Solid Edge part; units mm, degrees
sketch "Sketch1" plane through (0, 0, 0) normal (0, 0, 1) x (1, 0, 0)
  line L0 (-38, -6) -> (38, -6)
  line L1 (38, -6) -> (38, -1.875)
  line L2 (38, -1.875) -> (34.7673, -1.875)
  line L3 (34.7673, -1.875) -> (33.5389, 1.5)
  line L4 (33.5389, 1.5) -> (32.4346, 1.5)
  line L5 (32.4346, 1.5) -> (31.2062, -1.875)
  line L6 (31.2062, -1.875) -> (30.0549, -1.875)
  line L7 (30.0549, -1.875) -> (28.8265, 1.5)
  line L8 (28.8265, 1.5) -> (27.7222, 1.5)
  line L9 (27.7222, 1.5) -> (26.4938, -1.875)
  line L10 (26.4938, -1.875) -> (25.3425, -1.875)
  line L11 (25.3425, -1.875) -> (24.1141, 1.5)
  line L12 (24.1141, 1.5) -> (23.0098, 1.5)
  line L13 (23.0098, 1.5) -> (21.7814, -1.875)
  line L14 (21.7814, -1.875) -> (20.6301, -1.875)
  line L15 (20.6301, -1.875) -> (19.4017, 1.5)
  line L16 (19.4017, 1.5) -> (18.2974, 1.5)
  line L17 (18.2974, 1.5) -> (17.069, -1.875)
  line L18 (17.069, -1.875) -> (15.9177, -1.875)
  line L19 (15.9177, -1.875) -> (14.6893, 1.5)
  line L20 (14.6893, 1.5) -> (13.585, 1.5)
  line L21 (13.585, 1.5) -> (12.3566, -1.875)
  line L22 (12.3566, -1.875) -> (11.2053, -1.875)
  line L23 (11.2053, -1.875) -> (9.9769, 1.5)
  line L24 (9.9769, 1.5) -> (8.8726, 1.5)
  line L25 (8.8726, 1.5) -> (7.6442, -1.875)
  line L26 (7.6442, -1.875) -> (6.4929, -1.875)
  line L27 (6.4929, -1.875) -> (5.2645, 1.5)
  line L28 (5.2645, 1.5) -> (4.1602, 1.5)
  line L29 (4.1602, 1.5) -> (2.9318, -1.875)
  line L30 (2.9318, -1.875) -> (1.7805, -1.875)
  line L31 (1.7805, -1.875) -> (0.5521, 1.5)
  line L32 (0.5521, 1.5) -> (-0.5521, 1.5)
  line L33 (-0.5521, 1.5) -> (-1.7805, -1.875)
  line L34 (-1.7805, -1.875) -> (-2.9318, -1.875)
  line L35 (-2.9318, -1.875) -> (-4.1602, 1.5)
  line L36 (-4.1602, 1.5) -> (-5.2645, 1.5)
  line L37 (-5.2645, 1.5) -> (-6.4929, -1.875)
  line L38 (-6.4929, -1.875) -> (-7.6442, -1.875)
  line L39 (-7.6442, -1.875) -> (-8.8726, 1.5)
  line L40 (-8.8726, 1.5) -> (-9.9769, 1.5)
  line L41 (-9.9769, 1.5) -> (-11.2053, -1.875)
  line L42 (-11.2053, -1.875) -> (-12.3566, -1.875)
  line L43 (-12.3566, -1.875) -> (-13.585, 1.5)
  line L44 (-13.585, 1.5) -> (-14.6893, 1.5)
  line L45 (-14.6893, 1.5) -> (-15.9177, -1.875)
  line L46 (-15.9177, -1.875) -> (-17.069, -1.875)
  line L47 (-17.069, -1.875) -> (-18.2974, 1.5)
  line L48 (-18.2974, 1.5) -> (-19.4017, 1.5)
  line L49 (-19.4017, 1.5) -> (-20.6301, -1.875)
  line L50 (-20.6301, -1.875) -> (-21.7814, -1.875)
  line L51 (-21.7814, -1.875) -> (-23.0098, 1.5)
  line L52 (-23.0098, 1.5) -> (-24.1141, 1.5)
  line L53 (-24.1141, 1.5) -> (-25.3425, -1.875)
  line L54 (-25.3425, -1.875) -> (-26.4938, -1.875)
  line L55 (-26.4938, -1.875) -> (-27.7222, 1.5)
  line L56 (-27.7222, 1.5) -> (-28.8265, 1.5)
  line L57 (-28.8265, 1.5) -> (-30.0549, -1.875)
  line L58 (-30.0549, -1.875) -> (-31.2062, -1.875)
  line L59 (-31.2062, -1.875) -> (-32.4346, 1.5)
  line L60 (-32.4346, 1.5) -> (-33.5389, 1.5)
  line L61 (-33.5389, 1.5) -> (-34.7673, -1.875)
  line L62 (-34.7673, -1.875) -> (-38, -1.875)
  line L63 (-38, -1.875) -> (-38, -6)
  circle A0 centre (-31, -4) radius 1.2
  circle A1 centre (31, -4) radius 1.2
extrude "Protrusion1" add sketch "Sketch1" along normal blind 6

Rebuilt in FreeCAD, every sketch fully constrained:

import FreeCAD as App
import Part
import Sketcher

V = App.Vector
Q = App.Units.Quantity

doc = App.newDocument("Part")
params = doc.addObject("Spreadsheet::Sheet", "Params")
for row, (alias, value) in enumerate([
    ("sketch1_diameter", "2.4 mm"),
    ("sketch1_width", "76 mm"),
    ("pad1_length", "6 mm"),
], start=1):
    params.set(f"A{row}", alias)
    params.set(f"B{row}", "=" + value)
    params.setAlias(f"B{row}", alias)

body = doc.addObject("PartDesign::Body", "Body")

# Sketch on XY plane
sketch1 = body.newObject("Sketcher::SketchObject", "Sketch")
sketch1.AttachmentSupport = (doc.getObject("XY_Plane"), [""])
sketch1.MapMode = "FlatFace"
sketch1.addGeometry(Part.LineSegment(V(-38, -1.875, 0), V(-38, -6, 0)), False)
sketch1.addGeometry(Part.LineSegment(V(-38, -6, 0), V(38, -6, 0)), False)
sketch1.addGeometry(Part.LineSegment(V(38, -6, 0), V(38, -1.875, 0)), False)
sketch1.addGeometry(Part.LineSegment(V(38, -1.875, 0), V(34.7673, -1.875, 0)), False)
sketch1.addGeometry(Part.LineSegment(V(34.7673, -1.875, 0), V(33.5389, 1.5, 0)), False)
sketch1.addGeometry(Part.LineSegment(V(33.5389, 1.5, 0), V(32.4346, 1.5, 0)), False)
sketch1.addGeometry(Part.LineSegment(V(32.4346, 1.5, 0), V(31.2062, -1.875, 0)), False)
sketch1.addGeometry(Part.LineSegment(V(31.2062, -1.875, 0), V(30.0549, -1.875, 0)), False)
sketch1.addGeometry(Part.LineSegment(V(30.0549, -1.875, 0), V(28.8265, 1.5, 0)), False)
sketch1.addGeometry(Part.LineSegment(V(28.8265, 1.5, 0), V(27.7222, 1.5, 0)), False)
sketch1.addGeometry(Part.LineSegment(V(27.7222, 1.5, 0), V(26.4938, -1.875, 0)), False)
sketch1.addGeometry(Part.LineSegment(V(26.4938, -1.875, 0), V(25.3425, -1.875, 0)), False)
sketch1.addGeometry(Part.LineSegment(V(25.3425, -1.875, 0), V(24.1141, 1.5, 0)), False)
sketch1.addGeometry(Part.LineSegment(V(24.1141, 1.5, 0), V(23.0098, 1.5, 0)), False)
sketch1.addGeometry(Part.LineSegment(V(23.0098, 1.5, 0), V(21.7814, -1.875, 0)), False)
sketch1.addGeometry(Part.LineSegment(V(21.7814, -1.875, 0), V(20.6301, -1.875, 0)), False)
sketch1.addGeometry(Part.LineSegment(V(20.6301, -1.875, 0), V(19.4017, 1.5, 0)), False)
sketch1.addGeometry(Part.LineSegment(V(19.4017, 1.5, 0), V(18.2974, 1.5, 0)), False)
sketch1.addGeometry(Part.LineSegment(V(18.2974, 1.5, 0), V(17.069, -1.875, 0)), False)
sketch1.addGeometry(Part.LineSegment(V(17.069, -1.875, 0), V(15.9177, -1.875, 0)), False)
sketch1.addGeometry(Part.LineSegment(V(15.9177, -1.875, 0), V(14.6893, 1.5, 0)), False)
sketch1.addGeometry(Part.LineSegment(V(14.6893, 1.5, 0), V(13.585, 1.5, 0)), False)
sketch1.addGeometry(Part.LineSegment(V(13.585, 1.5, 0), V(12.3566, -1.875, 0)), False)
sketch1.addGeometry(Part.LineSegment(V(12.3566, -1.875, 0), V(11.2053, -1.875, 0)), False)
sketch1.addGeometry(Part.LineSegment(V(11.2053, -1.875, 0), V(9.9769, 1.5, 0)), False)
sketch1.addGeometry(Part.LineSegment(V(9.9769, 1.5, 0), V(8.8726, 1.5, 0)), False)
sketch1.addGeometry(Part.LineSegment(V(8.8726, 1.5, 0), V(7.6442, -1.875, 0)), False)
sketch1.addGeometry(Part.LineSegment(V(7.6442, -1.875, 0), V(6.4929, -1.875, 0)), False)
sketch1.addGeometry(Part.LineSegment(V(6.4929, -1.875, 0), V(5.2645, 1.5, 0)), False)
sketch1.addGeometry(Part.LineSegment(V(5.2645, 1.5, 0), V(4.1602, 1.5, 0)), False)
sketch1.addGeometry(Part.LineSegment(V(4.1602, 1.5, 0), V(2.9318, -1.875, 0)), False)
sketch1.addGeometry(Part.LineSegment(V(2.9318, -1.875, 0), V(1.7805, -1.875, 0)), False)
sketch1.addGeometry(Part.LineSegment(V(1.7805, -1.875, 0), V(0.5521, 1.5, 0)), False)
sketch1.addGeometry(Part.LineSegment(V(0.5521, 1.5, 0), V(-0.5521, 1.5, 0)), False)
sketch1.addGeometry(Part.LineSegment(V(-0.5521, 1.5, 0), V(-1.7805, -1.875, 0)), False)
sketch1.addGeometry(Part.LineSegment(V(-1.7805, -1.875, 0), V(-2.9318, -1.875, 0)), False)
sketch1.addGeometry(Part.LineSegment(V(-2.9318, -1.875, 0), V(-4.1602, 1.5, 0)), False)
sketch1.addGeometry(Part.LineSegment(V(-4.1602, 1.5, 0), V(-5.2645, 1.5, 0)), False)
sketch1.addGeometry(Part.LineSegment(V(-5.2645, 1.5, 0), V(-6.4929, -1.875, 0)), False)
sketch1.addGeometry(Part.LineSegment(V(-6.4929, -1.875, 0), V(-7.6442, -1.875, 0)), False)
sketch1.addGeometry(Part.LineSegment(V(-7.6442, -1.875, 0), V(-8.8726, 1.5, 0)), False)
sketch1.addGeometry(Part.LineSegment(V(-8.8726, 1.5, 0), V(-9.9769, 1.5, 0)), False)
sketch1.addGeometry(Part.LineSegment(V(-9.9769, 1.5, 0), V(-11.2053, -1.875, 0)), False)
sketch1.addGeometry(Part.LineSegment(V(-11.2053, -1.875, 0), V(-12.3566, -1.875, 0)), False)
sketch1.addGeometry(Part.LineSegment(V(-12.3566, -1.875, 0), V(-13.585, 1.5, 0)), False)
sketch1.addGeometry(Part.LineSegment(V(-13.585, 1.5, 0), V(-14.6893, 1.5, 0)), False)
sketch1.addGeometry(Part.LineSegment(V(-14.6893, 1.5, 0), V(-15.9177, -1.875, 0)), False)
sketch1.addGeometry(Part.LineSegment(V(-15.9177, -1.875, 0), V(-17.069, -1.875, 0)), False)
sketch1.addGeometry(Part.LineSegment(V(-17.069, -1.875, 0), V(-18.2974, 1.5, 0)), False)
sketch1.addGeometry(Part.LineSegment(V(-18.2974, 1.5, 0), V(-19.4017, 1.5, 0)), False)
sketch1.addGeometry(Part.LineSegment(V(-19.4017, 1.5, 0), V(-20.6301, -1.875, 0)), False)
sketch1.addGeometry(Part.LineSegment(V(-20.6301, -1.875, 0), V(-21.7814, -1.875, 0)), False)
sketch1.addGeometry(Part.LineSegment(V(-21.7814, -1.875, 0), V(-23.0098, 1.5, 0)), False)
sketch1.addGeometry(Part.LineSegment(V(-23.0098, 1.5, 0), V(-24.1141, 1.5, 0)), False)
sketch1.addGeometry(Part.LineSegment(V(-24.1141, 1.5, 0), V(-25.3425, -1.875, 0)), False)
sketch1.addGeometry(Part.LineSegment(V(-25.3425, -1.875, 0), V(-26.4938, -1.875, 0)), False)
sketch1.addGeometry(Part.LineSegment(V(-26.4938, -1.875, 0), V(-27.7222, 1.5, 0)), False)
sketch1.addGeometry(Part.LineSegment(V(-27.7222, 1.5, 0), V(-28.8265, 1.5, 0)), False)
sketch1.addGeometry(Part.LineSegment(V(-28.8265, 1.5, 0), V(-30.0549, -1.875, 0)), False)
sketch1.addGeometry(Part.LineSegment(V(-30.0549, -1.875, 0), V(-31.2062, -1.875, 0)), False)
sketch1.addGeometry(Part.LineSegment(V(-31.2062, -1.875, 0), V(-32.4346, 1.5, 0)), False)
sketch1.addGeometry(Part.LineSegment(V(-32.4346, 1.5, 0), V(-33.5389, 1.5, 0)), False)
sketch1.addGeometry(Part.LineSegment(V(-33.5389, 1.5, 0), V(-34.7673, -1.875, 0)), False)
sketch1.addGeometry(Part.LineSegment(V(-34.7673, -1.875, 0), V(-38, -1.875, 0)), False)
sketch1.addGeometry(Part.Circle(V(-31, -4, 0), V(0, 0, 1), 1.2), False)
sketch1.addGeometry(Part.Circle(V(31, -4, 0), V(0, 0, 1), 1.2), False)
sketch1.addConstraint(Sketcher.Constraint("Coincident", 0, 2, 1, 1))
sketch1.addConstraint(Sketcher.Constraint("Coincident", 1, 2, 2, 1))
sketch1.addConstraint(Sketcher.Constraint("Coincident", 2, 2, 3, 1))
sketch1.addConstraint(Sketcher.Constraint("Coincident", 3, 2, 4, 1))
sketch1.addConstraint(Sketcher.Constraint("Coincident", 4, 2, 5, 1))
sketch1.addConstraint(Sketcher.Constraint("Coincident", 5, 2, 6, 1))
sketch1.addConstraint(Sketcher.Constraint("Coincident", 6, 2, 7, 1))
sketch1.addConstraint(Sketcher.Constraint("Coincident", 7, 2, 8, 1))
sketch1.addConstraint(Sketcher.Constraint("Coincident", 8, 2, 9, 1))
sketch1.addConstraint(Sketcher.Constraint("Coincident", 9, 2, 10, 1))
sketch1.addConstraint(Sketcher.Constraint("Coincident", 10, 2, 11, 1))
sketch1.addConstraint(Sketcher.Constraint("Coincident", 11, 2, 12, 1))
sketch1.addConstraint(Sketcher.Constraint("Coincident", 12, 2, 13, 1))
sketch1.addConstraint(Sketcher.Constraint("Coincident", 13, 2, 14, 1))
sketch1.addConstraint(Sketcher.Constraint("Coincident", 14, 2, 15, 1))
sketch1.addConstraint(Sketcher.Constraint("Coincident", 15, 2, 16, 1))
sketch1.addConstraint(Sketcher.Constraint("Coincident", 16, 2, 17, 1))
sketch1.addConstraint(Sketcher.Constraint("Coincident", 17, 2, 18, 1))
sketch1.addConstraint(Sketcher.Constraint("Coincident", 18, 2, 19, 1))
sketch1.addConstraint(Sketcher.Constraint("Coincident", 19, 2, 20, 1))
sketch1.addConstraint(Sketcher.Constraint("Coincident", 20, 2, 21, 1))
sketch1.addConstraint(Sketcher.Constraint("Coincident", 21, 2, 22, 1))
sketch1.addConstraint(Sketcher.Constraint("Coincident", 22, 2, 23, 1))
sketch1.addConstraint(Sketcher.Constraint("Coincident", 23, 2, 24, 1))
sketch1.addConstraint(Sketcher.Constraint("Coincident", 24, 2, 25, 1))
sketch1.addConstraint(Sketcher.Constraint("Coincident", 25, 2, 26, 1))
sketch1.addConstraint(Sketcher.Constraint("Coincident", 26, 2, 27, 1))
sketch1.addConstraint(Sketcher.Constraint("Coincident", 27, 2, 28, 1))
sketch1.addConstraint(Sketcher.Constraint("Coincident", 28, 2, 29, 1))
sketch1.addConstraint(Sketcher.Constraint("Coincident", 29, 2, 30, 1))
sketch1.addConstraint(Sketcher.Constraint("Coincident", 30, 2, 31, 1))
sketch1.addConstraint(Sketcher.Constraint("Coincident", 31, 2, 32, 1))
sketch1.addConstraint(Sketcher.Constraint("Coincident", 32, 2, 33, 1))
sketch1.addConstraint(Sketcher.Constraint("Coincident", 33, 2, 34, 1))
sketch1.addConstraint(Sketcher.Constraint("Coincident", 34, 2, 35, 1))
sketch1.addConstraint(Sketcher.Constraint("Coincident", 35, 2, 36, 1))
sketch1.addConstraint(Sketcher.Constraint("Coincident", 36, 2, 37, 1))
sketch1.addConstraint(Sketcher.Constraint("Coincident", 37, 2, 38, 1))
sketch1.addConstraint(Sketcher.Constraint("Coincident", 38, 2, 39, 1))
sketch1.addConstraint(Sketcher.Constraint("Coincident", 39, 2, 40, 1))
sketch1.addConstraint(Sketcher.Constraint("Coincident", 40, 2, 41, 1))
sketch1.addConstraint(Sketcher.Constraint("Coincident", 41, 2, 42, 1))
sketch1.addConstraint(Sketcher.Constraint("Coincident", 42, 2, 43, 1))
sketch1.addConstraint(Sketcher.Constraint("Coincident", 43, 2, 44, 1))
sketch1.addConstraint(Sketcher.Constraint("Coincident", 44, 2, 45, 1))
sketch1.addConstraint(Sketcher.Constraint("Coincident", 45, 2, 46, 1))
sketch1.addConstraint(Sketcher.Constraint("Coincident", 46, 2, 47, 1))
sketch1.addConstraint(Sketcher.Constraint("Coincident", 47, 2, 48, 1))
sketch1.addConstraint(Sketcher.Constraint("Coincident", 48, 2, 49, 1))
sketch1.addConstraint(Sketcher.Constraint("Coincident", 49, 2, 50, 1))
sketch1.addConstraint(Sketcher.Constraint("Coincident", 50, 2, 51, 1))
sketch1.addConstraint(Sketcher.Constraint("Coincident", 51, 2, 52, 1))
sketch1.addConstraint(Sketcher.Constraint("Coincident", 52, 2, 53, 1))
sketch1.addConstraint(Sketcher.Constraint("Coincident", 53, 2, 54, 1))
sketch1.addConstraint(Sketcher.Constraint("Coincident", 54, 2, 55, 1))
sketch1.addConstraint(Sketcher.Constraint("Coincident", 55, 2, 56, 1))
sketch1.addConstraint(Sketcher.Constraint("Coincident", 56, 2, 57, 1))
sketch1.addConstraint(Sketcher.Constraint("Coincident", 57, 2, 58, 1))
sketch1.addConstraint(Sketcher.Constraint("Coincident", 58, 2, 59, 1))
sketch1.addConstraint(Sketcher.Constraint("Coincident", 59, 2, 60, 1))
sketch1.addConstraint(Sketcher.Constraint("Coincident", 60, 2, 61, 1))
sketch1.addConstraint(Sketcher.Constraint("Coincident", 61, 2, 62, 1))
sketch1.addConstraint(Sketcher.Constraint("Coincident", 62, 2, 63, 1))
sketch1.addConstraint(Sketcher.Constraint("Coincident", 63, 2, 0, 1))
sketch1.addConstraint(Sketcher.Constraint("Vertical", 0))
sketch1.addConstraint(Sketcher.Constraint("Horizontal", 1))
sketch1.addConstraint(Sketcher.Constraint("Vertical", 2))
sketch1.addConstraint(Sketcher.Constraint("Horizontal", 3))
sketch1.addConstraint(Sketcher.Constraint("Horizontal", 5))
sketch1.addConstraint(Sketcher.Constraint("Horizontal", 7))
sketch1.addConstraint(Sketcher.Constraint("Horizontal", 9))
sketch1.addConstraint(Sketcher.Constraint("Horizontal", 11))
sketch1.addConstraint(Sketcher.Constraint("Horizontal", 13))
sketch1.addConstraint(Sketcher.Constraint("Horizontal", 15))
sketch1.addConstraint(Sketcher.Constraint("Horizontal", 17))
sketch1.addConstraint(Sketcher.Constraint("Horizontal", 19))
sketch1.addConstraint(Sketcher.Constraint("Horizontal", 21))
sketch1.addConstraint(Sketcher.Constraint("Horizontal", 23))
sketch1.addConstraint(Sketcher.Constraint("Horizontal", 25))
sketch1.addConstraint(Sketcher.Constraint("Horizontal", 27))
sketch1.addConstraint(Sketcher.Constraint("Horizontal", 29))
sketch1.addConstraint(Sketcher.Constraint("Horizontal", 31))
sketch1.addConstraint(Sketcher.Constraint("Horizontal", 33))
sketch1.addConstraint(Sketcher.Constraint("Horizontal", 35))
sketch1.addConstraint(Sketcher.Constraint("Horizontal", 37))
sketch1.addConstraint(Sketcher.Constraint("Horizontal", 39))
sketch1.addConstraint(Sketcher.Constraint("Horizontal", 41))
sketch1.addConstraint(Sketcher.Constraint("Horizontal", 43))
sketch1.addConstraint(Sketcher.Constraint("Horizontal", 45))
sketch1.addConstraint(Sketcher.Constraint("Horizontal", 47))
sketch1.addConstraint(Sketcher.Constraint("Horizontal", 49))
sketch1.addConstraint(Sketcher.Constraint("Horizontal", 51))
sketch1.addConstraint(Sketcher.Constraint("Horizontal", 53))
sketch1.addConstraint(Sketcher.Constraint("Horizontal", 55))
sketch1.addConstraint(Sketcher.Constraint("Horizontal", 57))
sketch1.addConstraint(Sketcher.Constraint("Horizontal", 59))
sketch1.addConstraint(Sketcher.Constraint("Horizontal", 61))
sketch1.addConstraint(Sketcher.Constraint("Horizontal", 63))
sketch1.addConstraint(Sketcher.Constraint("Equal", 64, 65))
sketch1.addConstraint(Sketcher.Constraint("Symmetric", 64, 3, 65, 3, -2))
sketch1.addConstraint(Sketcher.Constraint("Symmetric", 31, 2, 34, 2, -2))
sketch1.addConstraint(Sketcher.Constraint("Symmetric", 29, 2, 36, 2, -2))
sketch1.addConstraint(Sketcher.Constraint("Symmetric", 27, 2, 38, 2, -2))
sketch1.addConstraint(Sketcher.Constraint("Symmetric", 25, 2, 40, 2, -2))
sketch1.addConstraint(Sketcher.Constraint("Symmetric", 23, 2, 42, 2, -2))
sketch1.addConstraint(Sketcher.Constraint("Symmetric", 21, 2, 44, 2, -2))
sketch1.addConstraint(Sketcher.Constraint("Symmetric", 19, 2, 46, 2, -2))
sketch1.addConstraint(Sketcher.Constraint("Symmetric", 17, 2, 48, 2, -2))
sketch1.addConstraint(Sketcher.Constraint("Symmetric", 15, 2, 50, 2, -2))
sketch1.addConstraint(Sketcher.Constraint("Symmetric", 13, 2, 52, 2, -2))
sketch1.addConstraint(Sketcher.Constraint("Symmetric", 11, 2, 54, 2, -2))
sketch1.addConstraint(Sketcher.Constraint("Symmetric", 9, 2, 56, 2, -2))
sketch1.addConstraint(Sketcher.Constraint("Symmetric", 7, 2, 58, 2, -2))
sketch1.addConstraint(Sketcher.Constraint("Symmetric", 5, 2, 60, 2, -2))
sketch1.addConstraint(Sketcher.Constraint("Symmetric", 3, 2, 62, 2, -2))
sketch1.addConstraint(Sketcher.Constraint("Parallel", 4, 8))
sketch1.addConstraint(Sketcher.Constraint("Parallel", 6, 10))
sketch1.addConstraint(Sketcher.Constraint("Parallel", 8, 12))
sketch1.addConstraint(Sketcher.Constraint("Parallel", 10, 14))
sketch1.addConstraint(Sketcher.Constraint("Parallel", 12, 16))
sketch1.addConstraint(Sketcher.Constraint("Parallel", 14, 18))
sketch1.addConstraint(Sketcher.Constraint("Parallel", 16, 20))
sketch1.addConstraint(Sketcher.Constraint("Parallel", 18, 22))
sketch1.addConstraint(Sketcher.Constraint("Parallel", 20, 24))
sketch1.addConstraint(Sketcher.Constraint("Parallel", 22, 26))
sketch1.addConstraint(Sketcher.Constraint("Parallel", 24, 28))
sketch1.addConstraint(Sketcher.Constraint("Parallel", 26, 30))
sketch1.addConstraint(Sketcher.Constraint("Parallel", 28, 32))
sketch1.addConstraint(Sketcher.Constraint("Parallel", 30, 34))
sketch1.addConstraint(Sketcher.Constraint("Parallel", 32, 36))
sketch1.addConstraint(Sketcher.Constraint("Parallel", 34, 38))
sketch1.addConstraint(Sketcher.Constraint("Parallel", 36, 40))
sketch1.addConstraint(Sketcher.Constraint("Parallel", 38, 42))
sketch1.addConstraint(Sketcher.Constraint("Parallel", 40, 44))
sketch1.addConstraint(Sketcher.Constraint("Parallel", 42, 46))
sketch1.addConstraint(Sketcher.Constraint("Parallel", 44, 48))
sketch1.addConstraint(Sketcher.Constraint("Parallel", 46, 50))
sketch1.addConstraint(Sketcher.Constraint("Parallel", 48, 52))
sketch1.addConstraint(Sketcher.Constraint("Parallel", 50, 54))
sketch1.addConstraint(Sketcher.Constraint("Parallel", 52, 56))
sketch1.addConstraint(Sketcher.Constraint("Parallel", 54, 58))
sketch1.addConstraint(Sketcher.Constraint("Parallel", 56, 60))
sketch1.addConstraint(Sketcher.Constraint("Parallel", 58, 62))
sketch1.addConstraint(Sketcher.Constraint("Horizontal", 3, 2, 6, 2))
sketch1.addConstraint(Sketcher.Constraint("Horizontal", 5, 2, 8, 2))
sketch1.addConstraint(Sketcher.Constraint("Horizontal", 7, 2, 10, 2))
sketch1.addConstraint(Sketcher.Constraint("Horizontal", 9, 2, 12, 2))
sketch1.addConstraint(Sketcher.Constraint("Horizontal", 11, 2, 14, 2))
sketch1.addConstraint(Sketcher.Constraint("Horizontal", 13, 2, 16, 2))
sketch1.addConstraint(Sketcher.Constraint("Horizontal", 15, 2, 18, 2))
sketch1.addConstraint(Sketcher.Constraint("Horizontal", 17, 2, 20, 2))
sketch1.addConstraint(Sketcher.Constraint("Horizontal", 19, 2, 22, 2))
sketch1.addConstraint(Sketcher.Constraint("Horizontal", 21, 2, 24, 2))
sketch1.addConstraint(Sketcher.Constraint("Horizontal", 23, 2, 26, 2))
sketch1.addConstraint(Sketcher.Constraint("Horizontal", 25, 2, 28, 2))
sketch1.addConstraint(Sketcher.Constraint("Horizontal", 27, 2, 30, 2))
sketch1.addConstraint(Sketcher.Constraint("Horizontal", 29, 2, 32, 2))
sketch1.addConstraint(Sketcher.Constraint("Equal", 5, 9))
sketch1.addConstraint(Sketcher.Constraint("Equal", 7, 11))
sketch1.addConstraint(Sketcher.Constraint("Equal", 9, 13))
sketch1.addConstraint(Sketcher.Constraint("Equal", 11, 15))
sketch1.addConstraint(Sketcher.Constraint("Equal", 13, 17))
sketch1.addConstraint(Sketcher.Constraint("Equal", 15, 19))
sketch1.addConstraint(Sketcher.Constraint("Equal", 17, 21))
sketch1.addConstraint(Sketcher.Constraint("Equal", 19, 23))
sketch1.addConstraint(Sketcher.Constraint("Equal", 21, 25))
sketch1.addConstraint(Sketcher.Constraint("Equal", 23, 27))
sketch1.addConstraint(Sketcher.Constraint("Equal", 25, 29))
sketch1.addConstraint(Sketcher.Constraint("Equal", 27, 31))
sketch1.addConstraint(Sketcher.Constraint("Equal", 29, 33))
sketch1.addConstraint(Sketcher.Constraint("Equal", 31, 35))
sketch1.addConstraint(Sketcher.Constraint("Equal", 3, 63))
sketch1.addConstraint(Sketcher.Constraint("Diameter", 64, Q("2.4 mm")))
sketch1.addConstraint(Sketcher.Constraint("DistanceX", 1, 1, 1, 2, Q("76 mm")))
sketch1.addConstraint(Sketcher.Constraint("Angle", 4, Q("110 deg")))
sketch1.addConstraint(Sketcher.Constraint("DistanceX", 64, 3, -1, 1, Q("31 mm")))
sketch1.addConstraint(Sketcher.Constraint("DistanceY", 64, 3, -1, 1, Q("4 mm")))
sketch1.addConstraint(Sketcher.Constraint("DistanceY", 0, 2, -1, 1, Q("6 mm")))
sketch1.addConstraint(Sketcher.Constraint("DistanceY", -1, 1, 4, 2, Q("1.5 mm")))
sketch1.addConstraint(Sketcher.Constraint("DistanceY", 0, 2, 0, 1, Q("4.125 mm")))
sketch1.addConstraint(Sketcher.Constraint("DistanceX", -1, 1, 15, 2, Q("20.63 mm")))
sketch1.addConstraint(Sketcher.Constraint("DistanceX", 3, 2, 3, 1, Q("3.2327 mm")))
sketch1.setExpression("Constraints[172]", "Params.sketch1_diameter")
sketch1.setExpression("Constraints[173]", "Params.sketch1_width")
pad1 = body.newObject("PartDesign::Pad", "Pad")
pad1.Profile = sketch1
pad1.setExpression("Length", "Params.pad1_length")

doc.recompute()
